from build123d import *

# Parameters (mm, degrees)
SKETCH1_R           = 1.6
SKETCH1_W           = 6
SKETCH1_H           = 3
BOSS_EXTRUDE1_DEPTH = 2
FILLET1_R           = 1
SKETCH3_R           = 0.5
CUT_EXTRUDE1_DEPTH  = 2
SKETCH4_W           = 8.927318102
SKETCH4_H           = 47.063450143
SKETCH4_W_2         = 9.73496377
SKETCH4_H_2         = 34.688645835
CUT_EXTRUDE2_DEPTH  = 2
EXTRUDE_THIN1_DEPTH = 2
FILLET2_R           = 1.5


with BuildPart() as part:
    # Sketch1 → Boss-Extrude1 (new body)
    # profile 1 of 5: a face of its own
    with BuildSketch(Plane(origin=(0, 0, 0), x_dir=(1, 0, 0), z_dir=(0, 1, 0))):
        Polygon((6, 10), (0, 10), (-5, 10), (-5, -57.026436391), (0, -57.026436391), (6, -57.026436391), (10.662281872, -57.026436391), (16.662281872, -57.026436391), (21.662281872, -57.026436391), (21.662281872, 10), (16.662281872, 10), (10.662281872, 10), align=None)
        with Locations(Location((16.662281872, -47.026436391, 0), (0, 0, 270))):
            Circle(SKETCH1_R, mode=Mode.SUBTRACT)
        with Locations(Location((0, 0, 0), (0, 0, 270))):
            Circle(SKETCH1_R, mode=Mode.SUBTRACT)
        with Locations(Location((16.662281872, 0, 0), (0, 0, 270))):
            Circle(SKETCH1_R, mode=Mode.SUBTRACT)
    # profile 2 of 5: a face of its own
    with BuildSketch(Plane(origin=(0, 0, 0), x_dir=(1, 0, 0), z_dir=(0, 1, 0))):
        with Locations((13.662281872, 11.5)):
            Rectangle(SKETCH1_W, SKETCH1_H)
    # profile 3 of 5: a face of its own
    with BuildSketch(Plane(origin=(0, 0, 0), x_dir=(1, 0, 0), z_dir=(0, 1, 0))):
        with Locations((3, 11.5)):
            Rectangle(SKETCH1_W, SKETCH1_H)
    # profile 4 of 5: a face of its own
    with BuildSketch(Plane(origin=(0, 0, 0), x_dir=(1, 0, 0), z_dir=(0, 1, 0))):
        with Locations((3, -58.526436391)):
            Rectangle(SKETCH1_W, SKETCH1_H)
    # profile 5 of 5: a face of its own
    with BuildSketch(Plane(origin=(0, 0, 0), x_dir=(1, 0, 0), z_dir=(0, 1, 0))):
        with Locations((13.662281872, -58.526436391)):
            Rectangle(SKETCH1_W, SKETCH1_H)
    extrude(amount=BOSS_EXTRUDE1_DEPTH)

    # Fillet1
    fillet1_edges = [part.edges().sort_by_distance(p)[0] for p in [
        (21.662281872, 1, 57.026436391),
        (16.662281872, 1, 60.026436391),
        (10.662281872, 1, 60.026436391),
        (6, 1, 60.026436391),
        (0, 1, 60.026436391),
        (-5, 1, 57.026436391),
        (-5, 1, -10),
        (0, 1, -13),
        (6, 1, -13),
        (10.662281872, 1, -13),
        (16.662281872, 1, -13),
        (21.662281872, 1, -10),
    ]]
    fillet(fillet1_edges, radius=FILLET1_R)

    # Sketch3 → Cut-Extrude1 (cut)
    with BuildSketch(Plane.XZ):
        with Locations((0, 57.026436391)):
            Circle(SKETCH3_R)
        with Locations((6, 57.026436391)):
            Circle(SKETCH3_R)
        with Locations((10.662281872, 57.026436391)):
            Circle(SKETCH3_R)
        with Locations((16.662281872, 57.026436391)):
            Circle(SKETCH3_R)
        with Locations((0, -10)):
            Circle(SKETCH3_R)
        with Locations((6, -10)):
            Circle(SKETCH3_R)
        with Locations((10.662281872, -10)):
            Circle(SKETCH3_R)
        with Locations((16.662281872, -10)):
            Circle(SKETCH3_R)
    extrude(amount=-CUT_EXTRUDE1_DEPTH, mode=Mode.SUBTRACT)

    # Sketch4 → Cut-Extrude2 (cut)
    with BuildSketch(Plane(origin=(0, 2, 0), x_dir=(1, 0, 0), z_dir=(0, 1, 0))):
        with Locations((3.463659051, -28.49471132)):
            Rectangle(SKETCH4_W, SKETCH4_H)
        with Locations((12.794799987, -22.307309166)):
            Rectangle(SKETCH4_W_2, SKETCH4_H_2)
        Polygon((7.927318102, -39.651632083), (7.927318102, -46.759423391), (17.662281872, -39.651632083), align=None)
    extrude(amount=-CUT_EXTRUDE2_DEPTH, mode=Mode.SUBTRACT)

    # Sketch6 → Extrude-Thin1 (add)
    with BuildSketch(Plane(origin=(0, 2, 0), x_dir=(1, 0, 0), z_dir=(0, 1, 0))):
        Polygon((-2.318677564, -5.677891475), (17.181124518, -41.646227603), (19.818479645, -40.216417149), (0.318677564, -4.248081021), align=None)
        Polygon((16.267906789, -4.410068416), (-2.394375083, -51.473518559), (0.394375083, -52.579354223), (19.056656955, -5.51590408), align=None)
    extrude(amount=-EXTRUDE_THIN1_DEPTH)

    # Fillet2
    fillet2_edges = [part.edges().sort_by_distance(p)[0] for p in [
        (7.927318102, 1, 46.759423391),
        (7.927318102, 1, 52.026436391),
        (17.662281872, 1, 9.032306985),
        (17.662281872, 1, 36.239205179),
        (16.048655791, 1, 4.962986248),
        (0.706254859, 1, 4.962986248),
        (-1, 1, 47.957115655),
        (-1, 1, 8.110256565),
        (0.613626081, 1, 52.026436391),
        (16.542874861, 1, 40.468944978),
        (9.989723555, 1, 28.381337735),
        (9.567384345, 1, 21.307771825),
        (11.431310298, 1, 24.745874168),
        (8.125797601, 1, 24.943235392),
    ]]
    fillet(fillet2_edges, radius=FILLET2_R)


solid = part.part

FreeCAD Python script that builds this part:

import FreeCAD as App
import Part
import Sketcher
from FreeCAD import Vector


def edges_at(feature, points):
    """Names of the edges that pass closest to the given points."""
    edges = feature.Shape.Edges
    near = lambda p: min(range(len(edges)), key=lambda i: edges[i].distToShape(Part.Vertex(*p))[0])
    return sorted({f"Edge{near(p) + 1}" for p in points})


def add_polygon(sketch, points):
    """Adds a closed chain of lines whose ends are joined by coincident constraints."""
    first, n = sketch.GeometryCount, len(points)
    for a, b in zip(points, points[1:] + points[:1]):
        sketch.addGeometry(Part.LineSegment(App.Vector(*a, 0), App.Vector(*b, 0)), False)
    for i in range(n):
        sketch.addConstraint(Sketcher.Constraint("Coincident", first + i, 2, first + (i + 1) % n, 1))

doc = App.newDocument("Part")
body = doc.addObject("PartDesign::Body", "Body")

sketch1 = body.newObject("Sketcher::SketchObject", "Sketch")
sketch1.AttachmentSupport = (doc.getObject("XZ_Plane"), [""])
sketch1.MapMode = "FlatFace"
add_polygon(sketch1, [(-5, -10), (-5, 57), (0, 57), (0, 60), (6, 60), (6, 57), (10.7, 57), (10.7, 60), (16.7, 60), (16.7, 57), (21.7, 57), (21.7, -10), (16.7, -10), (16.7, -13), (10.7, -13), (10.7, -10), (6, -10), (6, -13), (0, -13), (0, -10)])
sketch1.addGeometry(Part.Circle(Vector(16.7, 47, 0), Vector(0, 0, 1), 1.6), False)
sketch1.addGeometry(Part.Circle(Vector(0, 0, 0), Vector(0, 0, 1), 1.6), False)
sketch1.addGeometry(Part.Circle(Vector(16.7, 0, 0), Vector(0, 0, 1), 1.6), False)
sketch1.addConstraint([
    Sketcher.Constraint("Vertical", 0),
    Sketcher.Constraint("Horizontal", 1),
    Sketcher.Constraint("Vertical", 2),
    Sketcher.Constraint("Horizontal", 3),
    Sketcher.Constraint("Vertical", 4),
    Sketcher.Constraint("Horizontal", 5),
    Sketcher.Constraint("Vertical", 6),
    Sketcher.Constraint("Horizontal", 7),
    Sketcher.Constraint("Vertical", 8),
    Sketcher.Constraint("Horizontal", 9),
    Sketcher.Constraint("Vertical", 10),
    Sketcher.Constraint("Horizontal", 11),
    Sketcher.Constraint("Vertical", 12),
    Sketcher.Constraint("Horizontal", 13),
    Sketcher.Constraint("Vertical", 14),
    Sketcher.Constraint("Horizontal", 15),
    Sketcher.Constraint("Vertical", 16),
    Sketcher.Constraint("Horizontal", 17),
    Sketcher.Constraint("Vertical", 18),
    Sketcher.Constraint("Horizontal", 19),
    Sketcher.Constraint("Coincident", 21, 3, -1, 1),
    Sketcher.Constraint("Equal", 20, 21),
    Sketcher.Constraint("Equal", 21, 22),
    Sketcher.Constraint("PointOnObject", 22, 3, -1),
    Sketcher.Constraint("PointOnObject", 1, 2, -2),
    Sketcher.Constraint("PointOnObject", 17, 2, -2),
    Sketcher.Constraint("Horizontal", 1, 2, 4, 2),
    Sketcher.Constraint("Horizontal", 3, 2, 6, 2),
    Sketcher.Constraint("Horizontal", 5, 2, 8, 2),
    Sketcher.Constraint("Horizontal", 11, 2, 14, 2),
    Sketcher.Constraint("Horizontal", 13, 2, 16, 2),
    Sketcher.Constraint("Horizontal", 15, 2, 18, 2),
    Sketcher.Constraint("Vertical", 20, 3, 22, 3),
    Sketcher.Constraint("Vertical", 22, 3, 7, 2),
    Sketcher.Constraint("Vertical", 8, 2, 11, 2),
    Sketcher.Constraint("Vertical", 6, 2, 13, 2),
    Sketcher.Constraint("Vertical", 4, 2, 15, 2),
    Sketcher.Constraint("Equal", 3, 7),
    Sketcher.Constraint("Equal", 1, 9),
    Sketcher.Constraint("Equal", 8, 12),
    Sketcher.Constraint("Diameter", 20, 3.2),
    Sketcher.Constraint("DistanceX", 1, 1, 1, 2, 5.0),
    Sketcher.Constraint("DistanceX", 3, 1, 3, 2, 6.0),
    Sketcher.Constraint("DistanceY", 2, 1, 2, 2, 3.0),
    Sketcher.Constraint("DistanceY", 10, 2, -1, 1, 10.0),
    Sketcher.Constraint("DistanceY", 20, 3, 0, 2, 10.0),
    Sketcher.Constraint("DistanceX", 5, 1, 5, 2, 4.662282),
    Sketcher.Constraint("DistanceY", 0, 1, 0, 2, 67.026436),
])
pad1 = body.newObject("PartDesign::Pad", "Pad")
pad1.Profile = sketch1
pad1.Length = 2
pad1.Reversed = True
doc.recompute()

fillet = body.newObject("PartDesign::Fillet", "Fillet")
fillet.Base = (pad1, edges_at(pad1, [
    (21.662, 1, 57.026),
    (16.662, 1, 60.026),
    (10.662, 1, 60.026),
    (6, 1, 60.026),
    (0, 1, 60.026),
    (-5, 1, 57.026),
    (-5, 1, -10),
    (0, 1, -13),
    (6, 1, -13),
    (10.662, 1, -13),
    (16.662, 1, -13),
    (21.662, 1, -10),
]))
fillet.Radius = 1

sketch2 = body.newObject("Sketcher::SketchObject", "Sketch001")
sketch2.AttachmentSupport = (doc.getObject("XZ_Plane"), [""])
sketch2.MapMode = "FlatFace"
sketch2.addGeometry([
    Part.Circle(Vector(0, 57, 0), Vector(0, 0, 1), 0.5),
    Part.Circle(Vector(6, 57, 0), Vector(0, 0, 1), 0.5),
    Part.Circle(Vector(10.7, 57, 0), Vector(0, 0, 1), 0.5),
    Part.Circle(Vector(16.7, 57, 0), Vector(0, 0, 1), 0.5),
    Part.Circle(Vector(0, -10, 0), Vector(0, 0, 1), 0.5),
    Part.Circle(Vector(6, -10, 0), Vector(0, 0, 1), 0.5),
    Part.Circle(Vector(10.7, -10, 0), Vector(0, 0, 1), 0.5),
    Part.Circle(Vector(16.7, -10, 0), Vector(0, 0, 1), 0.5),
], False)
sketch2.addConstraint([
    Sketcher.Constraint("Equal", 0, 1),
    Sketcher.Constraint("Equal", 1, 2),
    Sketcher.Constraint("Equal", 2, 3),
    Sketcher.Constraint("Equal", 3, 4),
    Sketcher.Constraint("Equal", 4, 5),
    Sketcher.Constraint("Equal", 5, 6),
    Sketcher.Constraint("Equal", 6, 7),
    Sketcher.Constraint("PointOnObject", 0, 3, -2),
    Sketcher.Constraint("PointOnObject", 4, 3, -2),
    Sketcher.Constraint("Horizontal", 0, 3, 1, 3),
    Sketcher.Constraint("Horizontal", 1, 3, 2, 3),
    Sketcher.Constraint("Horizontal", 2, 3, 3, 3),
    Sketcher.Constraint("Horizontal", 4, 3, 5, 3),
    Sketcher.Constraint("Horizontal", 5, 3, 6, 3),
    Sketcher.Constraint("Horizontal", 6, 3, 7, 3),
    Sketcher.Constraint("Vertical", 1, 3, 5, 3),
    Sketcher.Constraint("Vertical", 2, 3, 6, 3),
    Sketcher.Constraint("Vertical", 3, 3, 7, 3),
    Sketcher.Constraint("Diameter", 0, 1.0),
    Sketcher.Constraint("DistanceX", -1, 1, 1, 3, 6.0),
    Sketcher.Constraint("DistanceY", 4, 3, -1, 1, 10.0),
    Sketcher.Constraint("DistanceX", 2, 3, 3, 3, 6.0),
    Sketcher.Constraint("DistanceX", -1, 1, 2, 3, 10.662282),
    Sketcher.Constraint("DistanceY", -1, 1, 0, 3, 57.026436),
])
pocket1 = body.newObject("PartDesign::Pocket", "Pocket")
pocket1.Profile = sketch2
pocket1.Length = 2

sketch3 = body.newObject("Sketcher::SketchObject", "Sketch002")
sketch3.AttachmentSupport = (doc.getObject("XZ_Plane"), [""])
sketch3.MapMode = "FlatFace"
sketch3.AttachmentOffset = App.Placement(Vector(0, 0, -2), App.Rotation())
add_polygon(sketch3, [(-1, 5), (-1, 52), (8, 52), (8, 47), (18, 40), (18, 5)])
sketch3.addConstraint([
    Sketcher.Constraint("Vertical", 0),
    Sketcher.Constraint("Horizontal", 1),
    Sketcher.Constraint("Vertical", 2),
    Sketcher.Constraint("Vertical", 4),
    Sketcher.Constraint("Horizontal", 5),
    Sketcher.Constraint("DistanceX", 0, 2, -1, 1, 1.0),
    Sketcher.Constraint("DistanceX", 1, 1, 1, 2, 8.927318),
    Sketcher.Constraint("DistanceX", 5, 2, 5, 1, 18.662282),
    Sketcher.Constraint("DistanceY", 0, 1, 0, 2, 47.06345),
    Sketcher.Constraint("Distance", 3, 12.053639),
    Sketcher.Constraint("DistanceY", 2, 2, 2, 1, 5.267013),
    Sketcher.Constraint("DistanceY", -1, 1, 0, 2, 52.026436),
])
pocket2 = body.newObject("PartDesign::Pocket", "Pocket001")
pocket2.Profile = sketch3
pocket2.Length = 2
pocket2.Reversed = True

sketch4 = body.newObject("Sketcher::SketchObject", "Sketch003")
sketch4.AttachmentSupport = (doc.getObject("XZ_Plane"), [""])
sketch4.MapMode = "FlatFace"
sketch4.AttachmentOffset = App.Placement(Vector(0, 0, -2), App.Rotation())
add_polygon(sketch4, [(0.3, 4.2), (-2.3, 5.7), (8.1, 24.9), (-2.4, 51.5), (0.4, 52.6), (10, 28.4), (17.2, 41.6), (19.8, 40.2), (11.4, 24.7), (19.1, 5.5), (16.3, 4.4), (9.6, 21.3)])
sketch4.addConstraint([
    Sketcher.Constraint("Perpendicular", 0, 1),
    Sketcher.Constraint("Perpendicular", 2, 3),
    Sketcher.Constraint("Perpendicular", 3, 4),
    Sketcher.Constraint("Parallel", 1, 5),
    Sketcher.Constraint("Perpendicular", 5, 6),
    Sketcher.Constraint("Perpendicular", 6, 7),
    Sketcher.Constraint("Parallel", 4, 8),
    Sketcher.Constraint("Perpendicular", 8, 9),
    Sketcher.Constraint("Perpendicular", 9, 10),
    Sketcher.Constraint("Parallel", 7, 11),
    Sketcher.Constraint("Equal", 0, 3),
    Sketcher.Constraint("Equal", 3, 6),
    Sketcher.Constraint("Equal", 6, 9),
    Sketcher.Constraint("Distance", 0, 3.0),
    Sketcher.Constraint("DistanceX", 0, 2, 4, 2, 12.308401),
    Sketcher.Constraint("DistanceX", 2, 2, 4, 2, 12.384099),
    Sketcher.Constraint("DistanceX", 4, 2, 5, 2, 7.191401),
    Sketcher.Constraint("DistanceY", 6, 2, 2, 2, 11.257101),
    Sketcher.Constraint("Distance", 1, 21.914391),
    Sketcher.Constraint("Distance", 2, 28.539971),
    Sketcher.Constraint("DistanceY", -1, 1, 0, 2, 5.677891),
    Sketcher.Constraint("DistanceX", -1, 1, 6, 2, 19.81848),
    Sketcher.Constraint("DistanceX", -1, 1, 7, 2, 11.43131),
    Sketcher.Constraint("DistanceY", -1, 1, 9, 2, 4.410068),
])
pad2 = body.newObject("PartDesign::Pad", "Pad001")
pad2.Profile = sketch4
pad2.Length = 2
doc.recompute()

fillet2 = body.newObject("PartDesign::Fillet", "Fillet001")
fillet2.Base = (pad2, edges_at(pad2, [
    (7.927, 1, 46.759),
    (7.927, 1, 52.026),
    (17.662, 1, 9.032),
    (17.662, 1, 36.239),
    (16.049, 1, 4.963),
    (0.706, 1, 4.963),
    (-1, 1, 47.957),
    (-1, 1, 8.11),
    (0.614, 1, 52.026),
    (16.543, 1, 40.469),
    (9.99, 1, 28.381),
    (9.567, 1, 21.308),
    (11.431, 1, 24.746),
    (8.126, 1, 24.943),
]))
fillet2.Radius = 1.5

doc.recompute()
